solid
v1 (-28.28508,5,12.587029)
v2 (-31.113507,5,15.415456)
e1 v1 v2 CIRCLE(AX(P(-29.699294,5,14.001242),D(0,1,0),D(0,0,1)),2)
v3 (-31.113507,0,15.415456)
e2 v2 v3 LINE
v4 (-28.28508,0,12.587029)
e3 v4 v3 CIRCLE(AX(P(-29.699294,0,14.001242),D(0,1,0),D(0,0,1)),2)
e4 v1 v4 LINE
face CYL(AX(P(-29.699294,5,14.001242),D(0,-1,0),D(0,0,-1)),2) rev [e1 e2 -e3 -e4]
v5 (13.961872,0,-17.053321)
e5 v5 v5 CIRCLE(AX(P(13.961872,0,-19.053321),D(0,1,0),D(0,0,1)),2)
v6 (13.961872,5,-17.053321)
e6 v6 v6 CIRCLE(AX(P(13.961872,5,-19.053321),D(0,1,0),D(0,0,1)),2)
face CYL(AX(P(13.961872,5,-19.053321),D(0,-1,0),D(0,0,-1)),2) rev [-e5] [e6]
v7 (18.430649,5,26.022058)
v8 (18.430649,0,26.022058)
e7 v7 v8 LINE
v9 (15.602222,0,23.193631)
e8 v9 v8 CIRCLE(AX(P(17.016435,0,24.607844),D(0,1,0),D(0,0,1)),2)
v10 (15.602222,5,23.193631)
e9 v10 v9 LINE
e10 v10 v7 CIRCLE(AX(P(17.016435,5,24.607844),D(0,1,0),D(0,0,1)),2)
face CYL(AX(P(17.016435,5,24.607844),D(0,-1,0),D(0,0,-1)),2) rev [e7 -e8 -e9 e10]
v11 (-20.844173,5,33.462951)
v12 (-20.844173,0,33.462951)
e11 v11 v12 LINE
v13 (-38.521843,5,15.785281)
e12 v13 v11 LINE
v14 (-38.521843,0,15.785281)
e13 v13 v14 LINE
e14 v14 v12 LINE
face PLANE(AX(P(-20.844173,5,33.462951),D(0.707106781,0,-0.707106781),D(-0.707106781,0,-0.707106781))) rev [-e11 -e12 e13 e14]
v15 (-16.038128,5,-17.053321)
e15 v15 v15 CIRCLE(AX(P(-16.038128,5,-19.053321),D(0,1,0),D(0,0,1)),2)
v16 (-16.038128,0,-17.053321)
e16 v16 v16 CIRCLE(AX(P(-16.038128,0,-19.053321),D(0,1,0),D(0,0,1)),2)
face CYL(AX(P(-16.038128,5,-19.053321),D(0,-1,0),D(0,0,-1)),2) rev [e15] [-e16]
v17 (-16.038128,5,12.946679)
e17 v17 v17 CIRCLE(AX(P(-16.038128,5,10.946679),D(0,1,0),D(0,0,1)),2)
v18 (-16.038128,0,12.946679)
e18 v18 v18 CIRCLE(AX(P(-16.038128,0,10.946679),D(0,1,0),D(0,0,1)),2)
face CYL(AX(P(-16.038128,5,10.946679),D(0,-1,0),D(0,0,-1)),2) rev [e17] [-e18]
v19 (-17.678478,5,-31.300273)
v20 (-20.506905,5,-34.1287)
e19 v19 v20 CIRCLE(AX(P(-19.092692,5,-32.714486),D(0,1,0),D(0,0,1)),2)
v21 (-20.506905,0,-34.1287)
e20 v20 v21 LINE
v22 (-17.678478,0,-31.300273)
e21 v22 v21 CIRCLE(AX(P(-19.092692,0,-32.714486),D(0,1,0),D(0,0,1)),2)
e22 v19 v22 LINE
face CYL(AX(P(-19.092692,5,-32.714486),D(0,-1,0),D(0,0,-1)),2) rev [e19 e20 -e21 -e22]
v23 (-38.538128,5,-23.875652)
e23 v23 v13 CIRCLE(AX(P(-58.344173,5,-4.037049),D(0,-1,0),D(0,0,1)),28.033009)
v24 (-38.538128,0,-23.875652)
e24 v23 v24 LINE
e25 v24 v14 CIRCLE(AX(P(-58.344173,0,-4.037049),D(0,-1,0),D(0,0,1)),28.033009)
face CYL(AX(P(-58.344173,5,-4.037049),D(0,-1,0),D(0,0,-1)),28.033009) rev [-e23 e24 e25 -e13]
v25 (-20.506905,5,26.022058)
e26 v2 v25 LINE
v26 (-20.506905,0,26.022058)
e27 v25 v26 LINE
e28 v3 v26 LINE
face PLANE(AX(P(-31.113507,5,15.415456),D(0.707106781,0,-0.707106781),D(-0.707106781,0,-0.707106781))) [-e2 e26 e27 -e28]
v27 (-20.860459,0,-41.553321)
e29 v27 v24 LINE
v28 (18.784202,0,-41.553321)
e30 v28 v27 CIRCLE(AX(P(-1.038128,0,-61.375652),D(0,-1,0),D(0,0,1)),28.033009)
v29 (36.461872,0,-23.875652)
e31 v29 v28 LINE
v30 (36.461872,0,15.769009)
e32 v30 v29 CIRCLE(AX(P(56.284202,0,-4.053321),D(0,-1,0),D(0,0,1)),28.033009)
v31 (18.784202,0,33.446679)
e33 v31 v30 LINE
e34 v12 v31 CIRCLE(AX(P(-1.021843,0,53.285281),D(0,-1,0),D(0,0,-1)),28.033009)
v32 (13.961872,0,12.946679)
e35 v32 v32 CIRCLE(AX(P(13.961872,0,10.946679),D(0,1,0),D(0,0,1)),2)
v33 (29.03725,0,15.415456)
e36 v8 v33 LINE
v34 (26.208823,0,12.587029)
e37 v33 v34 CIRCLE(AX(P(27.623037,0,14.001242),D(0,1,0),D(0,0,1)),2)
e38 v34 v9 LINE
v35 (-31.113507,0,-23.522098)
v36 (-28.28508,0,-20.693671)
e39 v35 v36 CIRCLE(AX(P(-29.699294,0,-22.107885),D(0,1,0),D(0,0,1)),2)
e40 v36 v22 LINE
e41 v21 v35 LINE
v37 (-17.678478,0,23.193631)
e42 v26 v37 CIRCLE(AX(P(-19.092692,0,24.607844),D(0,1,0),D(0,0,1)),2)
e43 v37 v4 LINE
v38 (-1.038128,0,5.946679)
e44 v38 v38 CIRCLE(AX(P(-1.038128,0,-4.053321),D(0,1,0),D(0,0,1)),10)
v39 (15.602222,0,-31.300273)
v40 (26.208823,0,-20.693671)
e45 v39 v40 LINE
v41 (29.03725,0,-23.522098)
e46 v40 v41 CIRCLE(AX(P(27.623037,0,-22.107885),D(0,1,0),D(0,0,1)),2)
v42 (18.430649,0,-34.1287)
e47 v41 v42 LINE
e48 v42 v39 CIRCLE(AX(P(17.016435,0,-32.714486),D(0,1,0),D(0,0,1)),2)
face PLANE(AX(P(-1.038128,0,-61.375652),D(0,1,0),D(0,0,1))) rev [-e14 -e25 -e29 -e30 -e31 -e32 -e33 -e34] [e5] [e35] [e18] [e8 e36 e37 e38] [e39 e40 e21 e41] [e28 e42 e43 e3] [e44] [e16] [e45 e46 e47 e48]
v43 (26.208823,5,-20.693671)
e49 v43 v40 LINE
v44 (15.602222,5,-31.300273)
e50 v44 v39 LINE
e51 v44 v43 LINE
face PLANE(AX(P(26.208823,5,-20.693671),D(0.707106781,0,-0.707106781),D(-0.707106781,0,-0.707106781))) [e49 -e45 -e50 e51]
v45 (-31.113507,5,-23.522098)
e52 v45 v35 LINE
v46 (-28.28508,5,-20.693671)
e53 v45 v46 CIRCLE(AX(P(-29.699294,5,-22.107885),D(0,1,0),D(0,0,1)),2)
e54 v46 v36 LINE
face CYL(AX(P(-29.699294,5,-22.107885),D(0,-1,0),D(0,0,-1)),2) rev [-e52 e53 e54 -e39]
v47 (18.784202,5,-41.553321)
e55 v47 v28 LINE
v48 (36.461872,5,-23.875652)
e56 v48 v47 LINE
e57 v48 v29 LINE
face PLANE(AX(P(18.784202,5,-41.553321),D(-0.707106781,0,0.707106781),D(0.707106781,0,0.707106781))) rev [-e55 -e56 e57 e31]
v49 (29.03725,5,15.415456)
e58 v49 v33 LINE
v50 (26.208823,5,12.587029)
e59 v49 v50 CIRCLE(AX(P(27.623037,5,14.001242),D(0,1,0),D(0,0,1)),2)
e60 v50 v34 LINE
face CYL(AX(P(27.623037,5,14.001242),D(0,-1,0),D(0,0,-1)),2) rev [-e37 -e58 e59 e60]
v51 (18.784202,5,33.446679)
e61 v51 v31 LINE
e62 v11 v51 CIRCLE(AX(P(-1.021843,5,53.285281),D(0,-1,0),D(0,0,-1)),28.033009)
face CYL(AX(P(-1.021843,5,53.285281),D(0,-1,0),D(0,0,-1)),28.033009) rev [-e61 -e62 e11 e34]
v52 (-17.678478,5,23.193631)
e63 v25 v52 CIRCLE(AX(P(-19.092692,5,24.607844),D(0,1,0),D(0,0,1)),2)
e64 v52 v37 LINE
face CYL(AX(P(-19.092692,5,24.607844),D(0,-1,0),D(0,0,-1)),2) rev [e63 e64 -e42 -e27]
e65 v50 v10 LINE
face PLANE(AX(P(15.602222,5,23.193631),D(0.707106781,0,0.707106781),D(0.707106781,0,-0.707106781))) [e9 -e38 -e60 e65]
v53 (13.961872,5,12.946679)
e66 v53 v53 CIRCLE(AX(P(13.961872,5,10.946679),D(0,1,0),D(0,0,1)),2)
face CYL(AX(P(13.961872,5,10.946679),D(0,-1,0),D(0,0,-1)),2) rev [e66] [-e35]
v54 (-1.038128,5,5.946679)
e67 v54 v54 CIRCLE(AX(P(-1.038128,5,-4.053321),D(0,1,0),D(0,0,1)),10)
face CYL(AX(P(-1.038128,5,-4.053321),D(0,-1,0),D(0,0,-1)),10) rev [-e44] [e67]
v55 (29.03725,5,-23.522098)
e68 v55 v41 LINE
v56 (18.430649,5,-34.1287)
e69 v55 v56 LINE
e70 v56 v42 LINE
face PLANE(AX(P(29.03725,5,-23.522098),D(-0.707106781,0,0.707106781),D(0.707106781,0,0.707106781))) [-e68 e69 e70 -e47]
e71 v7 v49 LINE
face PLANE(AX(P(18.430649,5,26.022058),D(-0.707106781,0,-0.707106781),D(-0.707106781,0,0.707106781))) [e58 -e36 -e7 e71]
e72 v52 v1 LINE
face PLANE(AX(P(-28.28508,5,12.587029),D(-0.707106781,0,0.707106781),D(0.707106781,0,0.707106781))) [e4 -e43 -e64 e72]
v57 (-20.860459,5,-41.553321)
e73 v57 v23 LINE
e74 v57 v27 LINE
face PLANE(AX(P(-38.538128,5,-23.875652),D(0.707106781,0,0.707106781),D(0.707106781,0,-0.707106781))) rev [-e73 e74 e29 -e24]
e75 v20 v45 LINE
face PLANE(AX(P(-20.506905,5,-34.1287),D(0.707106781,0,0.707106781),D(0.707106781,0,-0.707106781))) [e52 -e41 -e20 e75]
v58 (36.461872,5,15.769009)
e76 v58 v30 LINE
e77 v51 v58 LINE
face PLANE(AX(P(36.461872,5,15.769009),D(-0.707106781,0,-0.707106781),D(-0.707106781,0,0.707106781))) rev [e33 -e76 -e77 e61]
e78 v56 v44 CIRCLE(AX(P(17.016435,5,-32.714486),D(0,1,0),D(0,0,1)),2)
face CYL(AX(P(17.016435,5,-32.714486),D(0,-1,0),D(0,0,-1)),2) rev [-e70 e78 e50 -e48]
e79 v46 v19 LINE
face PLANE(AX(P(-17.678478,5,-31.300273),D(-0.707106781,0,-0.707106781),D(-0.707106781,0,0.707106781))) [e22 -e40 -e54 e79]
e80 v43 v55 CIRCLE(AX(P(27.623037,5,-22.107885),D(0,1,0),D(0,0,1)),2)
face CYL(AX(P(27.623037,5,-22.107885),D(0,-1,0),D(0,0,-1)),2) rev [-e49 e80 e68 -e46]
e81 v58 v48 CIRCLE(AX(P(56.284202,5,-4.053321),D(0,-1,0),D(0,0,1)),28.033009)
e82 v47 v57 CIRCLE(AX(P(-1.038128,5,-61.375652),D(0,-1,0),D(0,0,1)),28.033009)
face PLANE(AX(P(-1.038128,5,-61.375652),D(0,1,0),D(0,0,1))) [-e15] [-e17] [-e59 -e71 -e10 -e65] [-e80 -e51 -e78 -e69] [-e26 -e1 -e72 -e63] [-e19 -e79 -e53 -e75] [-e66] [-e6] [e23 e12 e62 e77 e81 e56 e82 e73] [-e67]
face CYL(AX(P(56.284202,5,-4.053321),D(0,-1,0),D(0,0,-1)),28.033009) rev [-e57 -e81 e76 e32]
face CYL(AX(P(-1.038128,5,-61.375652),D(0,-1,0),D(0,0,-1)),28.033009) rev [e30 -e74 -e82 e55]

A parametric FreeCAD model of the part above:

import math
import FreeCAD as App
import Part
import Sketcher

doc = App.newDocument("Part")
params = doc.addObject("Spreadsheet::Sheet", "Params")
for row, (alias, value) in enumerate([
    ("sketch1_diameter", "4 mm"),
    ("sketch1_diameter2", "20 mm"),
    ("sketch1_length", "25 mm"),
    ("sketch1_length2", "15 mm"),
    ("pad1_length", "5 mm"),
], start=1):
    params.set(f"A{row}", alias)
    params.set(f"B{row}", "=" + value)
    params.setAlias(f"B{row}", alias)

body = doc.addObject("PartDesign::Body", "Body")

# Sketch on XZ plane
sketch1 = body.newObject("Sketcher::SketchObject", "Sketch")
sketch1.AttachmentSupport = (doc.getObject("XZ_Plane"), [""])
sketch1.MapMode = "FlatFace"
sketch1.addGeometry(Part.LineSegment(App.Vector(36.5, -23.9, 0), App.Vector(18.8, -41.6, 0)), False)
sketch1.addGeometry(Part.ArcOfCircle(Part.Circle(App.Vector(-1, -61.4, 0), App.Vector(0, 0, 1), 28), math.radians(45), math.radians(135)), False)
sketch1.addGeometry(Part.LineSegment(App.Vector(-20.9, -41.6, 0), App.Vector(-38.5, -23.9, 0)), False)
sketch1.addGeometry(Part.ArcOfCircle(Part.Circle(App.Vector(-58.3, -4, 0), App.Vector(0, 0, 1), 28), math.radians(-45), math.radians(45)), False)
sketch1.addGeometry(Part.LineSegment(App.Vector(-38.5, 15.8, 0), App.Vector(-20.8, 33.5, 0)), False)
sketch1.addGeometry(Part.ArcOfCircle(Part.Circle(App.Vector(-1, 53.3, 0), App.Vector(0, 0, 1), 28), math.radians(-135), math.radians(-45)), False)
sketch1.addGeometry(Part.LineSegment(App.Vector(18.8, 33.4, 0), App.Vector(36.5, 15.8, 0)), False)
sketch1.addGeometry(Part.ArcOfCircle(Part.Circle(App.Vector(56.3, -4.1, 0), App.Vector(0, 0, 1), 28), math.radians(135), math.radians(225)), False)
sketch1.addGeometry(Part.ArcOfCircle(Part.Circle(App.Vector(17, 24.6, 0), App.Vector(0, 0, 1), 2), math.radians(45), math.radians(225)), False)
sketch1.addGeometry(Part.LineSegment(App.Vector(15.6, 23.2, 0), App.Vector(26.2, 12.6, 0)), False)
sketch1.addGeometry(Part.ArcOfCircle(Part.Circle(App.Vector(27.6, 14, 0), App.Vector(0, 0, 1), 2), math.radians(-135), math.radians(45)), False)
sketch1.addGeometry(Part.LineSegment(App.Vector(29, 15.4, 0), App.Vector(18.4, 26, 0)), False)
sketch1.addGeometry(Part.Circle(App.Vector(14, 10.9, 0), App.Vector(0, 0, 1), 2), False)
sketch1.addGeometry(Part.ArcOfCircle(Part.Circle(App.Vector(-29.7, 14, 0), App.Vector(0, 0, 1), 2), math.radians(135), math.radians(315)), False)
sketch1.addGeometry(Part.LineSegment(App.Vector(-28.3, 12.6, 0), App.Vector(-17.7, 23.2, 0)), False)
sketch1.addGeometry(Part.ArcOfCircle(Part.Circle(App.Vector(-19.1, 24.6, 0), App.Vector(0, 0, 1), 2), math.radians(-45), math.radians(135)), False)
sketch1.addGeometry(Part.LineSegment(App.Vector(-20.5, 26, 0), App.Vector(-31.1, 15.4, 0)), False)
sketch1.addGeometry(Part.Circle(App.Vector(-16, 10.9, 0), App.Vector(0, 0, 1), 2), False)
sketch1.addGeometry(Part.Circle(App.Vector(-1, -4.1, 0), App.Vector(0, 0, 1), 10), False)
sketch1.addGeometry(Part.Circle(App.Vector(14, -19.1, 0), App.Vector(0, 0, 1), 2), False)
sketch1.addGeometry(Part.ArcOfCircle(Part.Circle(App.Vector(27.6, -22.1, 0), App.Vector(0, 0, 1), 2), math.radians(-45), math.radians(135)), False)
sketch1.addGeometry(Part.LineSegment(App.Vector(26.2, -20.7, 0), App.Vector(15.6, -31.3, 0)), False)
sketch1.addGeometry(Part.ArcOfCircle(Part.Circle(App.Vector(17, -32.7, 0), App.Vector(0, 0, 1), 2), math.radians(135), math.radians(315)), False)
sketch1.addGeometry(Part.LineSegment(App.Vector(18.4, -34.1, 0), App.Vector(29, -23.5, 0)), False)
sketch1.addGeometry(Part.Circle(App.Vector(-16, -19.1, 0), App.Vector(0, 0, 1), 2), False)
sketch1.addGeometry(Part.LineSegment(App.Vector(-17.7, -31.3, 0), App.Vector(-28.3, -20.7, 0)), False)
sketch1.addGeometry(Part.ArcOfCircle(Part.Circle(App.Vector(-29.7, -22.1, 0), App.Vector(0, 0, 1), 2), math.radians(45), math.radians(225)), False)
sketch1.addGeometry(Part.LineSegment(App.Vector(-31.1, -23.5, 0), App.Vector(-20.5, -34.1, 0)), False)
sketch1.addGeometry(Part.ArcOfCircle(Part.Circle(App.Vector(-19.1, -32.7, 0), App.Vector(0, 0, 1), 2), math.radians(-135), math.radians(45)), False)
sketch1.addConstraint(Sketcher.Constraint("Coincident", 0, 2, 1, 1))
sketch1.addConstraint(Sketcher.Constraint("Coincident", 1, 2, 2, 1))
sketch1.addConstraint(Sketcher.Constraint("Coincident", 2, 2, 3, 1))
sketch1.addConstraint(Sketcher.Constraint("Coincident", 3, 2, 4, 1))
sketch1.addConstraint(Sketcher.Constraint("Coincident", 4, 2, 5, 1))
sketch1.addConstraint(Sketcher.Constraint("Coincident", 5, 2, 6, 1))
sketch1.addConstraint(Sketcher.Constraint("Coincident", 6, 2, 7, 1))
sketch1.addConstraint(Sketcher.Constraint("Coincident", 7, 2, 0, 1))
sketch1.addConstraint(Sketcher.Constraint("Tangent", 8, 2, 9, 1))
sketch1.addConstraint(Sketcher.Constraint("Tangent", 9, 2, 10, 1))
sketch1.addConstraint(Sketcher.Constraint("Tangent", 10, 2, 11, 1))
sketch1.addConstraint(Sketcher.Constraint("Tangent", 11, 2, 8, 1))
sketch1.addConstraint(Sketcher.Constraint("Tangent", 13, 2, 14, 1))
sketch1.addConstraint(Sketcher.Constraint("Tangent", 14, 2, 15, 1))
sketch1.addConstraint(Sketcher.Constraint("Tangent", 15, 2, 16, 1))
sketch1.addConstraint(Sketcher.Constraint("Tangent", 16, 2, 13, 1))
sketch1.addConstraint(Sketcher.Constraint("Tangent", 20, 2, 21, 1))
sketch1.addConstraint(Sketcher.Constraint("Tangent", 21, 2, 22, 1))
sketch1.addConstraint(Sketcher.Constraint("Tangent", 22, 2, 23, 1))
sketch1.addConstraint(Sketcher.Constraint("Tangent", 23, 2, 20, 1))
sketch1.addConstraint(Sketcher.Constraint("Tangent", 25, 2, 26, 1))
sketch1.addConstraint(Sketcher.Constraint("Tangent", 26, 2, 27, 1))
sketch1.addConstraint(Sketcher.Constraint("Tangent", 27, 2, 28, 1))
sketch1.addConstraint(Sketcher.Constraint("Tangent", 28, 2, 25, 1))
sketch1.addConstraint(Sketcher.Constraint("Equal", 1, 3))
sketch1.addConstraint(Sketcher.Constraint("Equal", 3, 5))
sketch1.addConstraint(Sketcher.Constraint("Equal", 5, 7))
sketch1.addConstraint(Sketcher.Constraint("Equal", 8, 10))
sketch1.addConstraint(Sketcher.Constraint("Equal", 10, 12))
sketch1.addConstraint(Sketcher.Constraint("Equal", 12, 13))
sketch1.addConstraint(Sketcher.Constraint("Equal", 13, 15))
sketch1.addConstraint(Sketcher.Constraint("Equal", 15, 17))
sketch1.addConstraint(Sketcher.Constraint("Equal", 17, 19))
sketch1.addConstraint(Sketcher.Constraint("Equal", 19, 20))
sketch1.addConstraint(Sketcher.Constraint("Equal", 20, 22))
sketch1.addConstraint(Sketcher.Constraint("Equal", 22, 24))
sketch1.addConstraint(Sketcher.Constraint("Equal", 24, 26))
sketch1.addConstraint(Sketcher.Constraint("Equal", 26, 28))
sketch1.addConstraint(Sketcher.Constraint("Perpendicular", 0, 2))
sketch1.addConstraint(Sketcher.Constraint("Perpendicular", 2, 4))
sketch1.addConstraint(Sketcher.Constraint("Perpendicular", 4, 6))
sketch1.addConstraint(Sketcher.Constraint("Parallel", 6, 9))
sketch1.addConstraint(Sketcher.Constraint("Perpendicular", 11, 14))
sketch1.addConstraint(Sketcher.Constraint("Parallel", 16, 21))
sketch1.addConstraint(Sketcher.Constraint("Perpendicular", 23, 25))
sketch1.addConstraint(Sketcher.Constraint("Horizontal", 10, 3, 13, 3))
sketch1.addConstraint(Sketcher.Constraint("Horizontal", 8, 3, 15, 3))
sketch1.addConstraint(Sketcher.Constraint("Horizontal", 12, 3, 17, 3))
sketch1.addConstraint(Sketcher.Constraint("Horizontal", 7, 3, 18, 3))
sketch1.addConstraint(Sketcher.Constraint("Horizontal", 19, 3, 24, 3))
sketch1.addConstraint(Sketcher.Constraint("Horizontal", 20, 3, 26, 3))
sketch1.addConstraint(Sketcher.Constraint("Horizontal", 22, 3, 28, 3))
sketch1.addConstraint(Sketcher.Constraint("Horizontal", 0, 2, 1, 2))
sketch1.addConstraint(Sketcher.Constraint("Horizontal", 2, 2, 7, 2))
sketch1.addConstraint(Sketcher.Constraint("Horizontal", 9, 2, 13, 2))
sketch1.addConstraint(Sketcher.Constraint("Vertical", 1, 3, 18, 3))
sketch1.addConstraint(Sketcher.Constraint("Vertical", 12, 3, 19, 3))
sketch1.addConstraint(Sketcher.Constraint("Vertical", 10, 3, 20, 3))
sketch1.addConstraint(Sketcher.Constraint("Vertical", 8, 3, 22, 3))
sketch1.addConstraint(Sketcher.Constraint("Vertical", 17, 3, 24, 3))
sketch1.addConstraint(Sketcher.Constraint("Vertical", 13, 3, 26, 3))
sketch1.addConstraint(Sketcher.Constraint("Vertical", 0, 2, 5, 2))
sketch1.addConstraint(Sketcher.Constraint("Vertical", 6, 2, 7, 2))
sketch1.addConstraint(Sketcher.Constraint("Equal", 2, 4))
sketch1.addConstraint(Sketcher.Constraint("Diameter", 12, 4.0))
sketch1.addConstraint(Sketcher.Constraint("Diameter", 18, 20.0))
sketch1.addConstraint(Sketcher.Constraint("Distance", 0, 25.0))
sketch1.addConstraint(Sketcher.Constraint("Distance", 9, 15.0))
sketch1.addConstraint(Sketcher.Constraint("DistanceY", 7, 3, 12, 3, 15.0))
sketch1.addConstraint(Sketcher.Constraint("DistanceX", 17, 3, 12, 3, 30.0))
sketch1.addConstraint(Sketcher.Constraint("DistanceX", 18, 3, 12, 3, 15.0))
sketch1.addConstraint(Sketcher.Constraint("DistanceY", 19, 3, 18, 3, 15.0))
sketch1.addConstraint(Sketcher.Constraint("DistanceY", 0, 2, 19, 3, 22.5))
sketch1.addConstraint(Sketcher.Constraint("DistanceX", 2, 2, 24, 3, 22.5))
sketch1.addConstraint(Sketcher.Constraint("Radius", 1, 28.033009))
sketch1.addConstraint(Sketcher.Constraint("DistanceY", 22, 2, -1, 1, 34.1287))
sketch1.addConstraint(Sketcher.Constraint("DistanceX", 1, 3, -1, 1, 1.038128))
sketch1.addConstraint(Sketcher.Constraint("DistanceY", 1, 3, -1, 1, 61.375652))
sketch1.addConstraint(Sketcher.Constraint("DistanceY", 3, 3, -1, 1, 4.037049))
sketch1.addConstraint(Sketcher.Constraint("DistanceX", 15, 3, -1, 1, 19.092692))
sketch1.addConstraint(Sketcher.Constraint("DistanceY", -1, 1, 3, 2, 15.785281))
sketch1.addConstraint(Sketcher.Constraint("DistanceX", -1, 1, 8, 2, 15.602222))
sketch1.addConstraint(Sketcher.Constraint("DistanceY", -1, 1, 8, 2, 23.193631))
sketch1.setExpression("Constraints[64]", "Params.sketch1_diameter")
sketch1.setExpression("Constraints[65]", "Params.sketch1_diameter2")
sketch1.setExpression("Constraints[66]", "Params.sketch1_length")
sketch1.setExpression("Constraints[67]", "Params.sketch1_length2")
pad1 = body.newObject("PartDesign::Pad", "Pad")
pad1.Profile = sketch1
pad1.setExpression("Length", "Params.pad1_length")
pad1.Reversed = True

doc.recompute()
